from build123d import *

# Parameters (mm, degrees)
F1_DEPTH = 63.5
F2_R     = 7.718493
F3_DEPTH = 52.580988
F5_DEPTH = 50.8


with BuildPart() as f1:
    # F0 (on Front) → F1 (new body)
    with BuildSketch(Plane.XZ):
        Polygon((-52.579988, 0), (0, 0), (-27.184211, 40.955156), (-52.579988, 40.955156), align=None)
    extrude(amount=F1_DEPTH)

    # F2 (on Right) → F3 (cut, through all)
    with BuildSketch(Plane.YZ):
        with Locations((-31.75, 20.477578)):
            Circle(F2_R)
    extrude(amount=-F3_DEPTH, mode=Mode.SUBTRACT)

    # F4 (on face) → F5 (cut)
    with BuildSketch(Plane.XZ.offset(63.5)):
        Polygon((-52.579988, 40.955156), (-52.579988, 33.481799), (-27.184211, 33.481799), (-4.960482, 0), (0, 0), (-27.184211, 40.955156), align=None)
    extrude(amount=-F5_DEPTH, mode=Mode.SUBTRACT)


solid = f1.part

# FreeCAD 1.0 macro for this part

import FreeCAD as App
import Part
import Sketcher
Q = App.Units.Quantity

doc = App.newDocument("Part")
body = doc.addObject("PartDesign::Body", "Body")

# Sketch on XZ plane
sketch1 = body.newObject("Sketcher::SketchObject", "Sketch")
sketch1.AttachmentSupport = (doc.getObject("XZ_Plane"), [""])
sketch1.MapMode = "FlatFace"
sketch1.addGeometry([
    Part.LineSegment(App.Vector(-53, 0, 0), App.Vector(0, 0, 0)),
    Part.LineSegment(App.Vector(0, 0, 0), App.Vector(-27, 41, 0)),
    Part.LineSegment(App.Vector(-27, 41, 0), App.Vector(-53, 41, 0)),
    Part.LineSegment(App.Vector(-53, 41, 0), App.Vector(-53, 0, 0)),
], False)
sketch1.addConstraint([
    Sketcher.Constraint("Coincident", 0, 2, 1, 1),
    Sketcher.Constraint("Coincident", 1, 2, 2, 1),
    Sketcher.Constraint("Coincident", 2, 2, 3, 1),
    Sketcher.Constraint("Coincident", 3, 2, 0, 1),
    Sketcher.Constraint("Horizontal", 0),
    Sketcher.Constraint("Horizontal", 2),
    Sketcher.Constraint("Vertical", 3),
    Sketcher.Constraint("Coincident", 0, 2, -1, 1),
    Sketcher.Constraint("DistanceX", 0, 1, 0, 2, 52.579988),
    Sketcher.Constraint("DistanceX", 2, 2, 2, 1, 25.395777),
    Sketcher.Constraint("DistanceY", 3, 2, 3, 1, 40.955156),
])
pad1 = body.newObject("PartDesign::Pad", "Pad")
pad1.Profile = sketch1
pad1.Length = Q("2.5 in")

# Sketch on YZ plane
sketch2 = body.newObject("Sketcher::SketchObject", "Sketch001")
sketch2.AttachmentSupport = (doc.getObject("YZ_Plane"), [""])
sketch2.MapMode = "FlatFace"
sketch2.addGeometry(Part.Circle(App.Vector(-32, 20, 0), App.Vector(0, 0, 1), 8), False)
sketch2.addConstraint([
    Sketcher.Constraint("DistanceX", 0, 3, -1, 1, Q("1.25 in")),
    Sketcher.Constraint("Diameter", 0, 15.436986),
    Sketcher.Constraint("DistanceY", -1, 1, 0, 3, 20.477578),
])
pocket1 = body.newObject("PartDesign::Pocket", "Pocket")
pocket1.Profile = sketch2
pocket1.Type = "ThroughAll"

# Sketch on XZ plane
sketch3 = body.newObject("Sketcher::SketchObject", "Sketch002")
sketch3.AttachmentSupport = (doc.getObject("XZ_Plane"), [""])
sketch3.MapMode = "FlatFace"
sketch3.AttachmentOffset = App.Placement(App.Vector(0, 0, 2.5 * 25.4), App.Rotation())
sketch3.addGeometry([
    Part.LineSegment(App.Vector(-52.6, 41, 0), App.Vector(-52.6, 33.5, 0)),  # 0
    Part.LineSegment(App.Vector(-52.6, 33.5, 0), App.Vector(-27.2, 33.5, 0)),  # 1
    Part.LineSegment(App.Vector(-27.2, 33.5, 0), App.Vector(-5, 0, 0)),  # 2
    Part.LineSegment(App.Vector(-5, 0, 0), App.Vector(0, 0, 0)),  # 3
    Part.LineSegment(App.Vector(0, 0, 0), App.Vector(-27.2, 41, 0)),  # 4
    Part.LineSegment(App.Vector(-27.2, 41, 0), App.Vector(-52.6, 41, 0)),  # 5
], False)
sketch3.addConstraint([
    Sketcher.Constraint("Coincident", 0, 2, 1, 1),
    Sketcher.Constraint("Coincident", 1, 2, 2, 1),
    Sketcher.Constraint("Coincident", 2, 2, 3, 1),
    Sketcher.Constraint("Coincident", 3, 2, 4, 1),
    Sketcher.Constraint("Coincident", 4, 2, 5, 1),
    Sketcher.Constraint("Coincident", 5, 2, 0, 1),
    Sketcher.Constraint("Vertical", 0),
    Sketcher.Constraint("Horizontal", 1),
    Sketcher.Constraint("Horizontal", 3),
    Sketcher.Constraint("Horizontal", 5),
    Sketcher.Constraint("Coincident", 3, 2, -1, 1),
    Sketcher.Constraint("Parallel", 2, 4),
    Sketcher.Constraint("Vertical", 1, 2, 4, 2),
    Sketcher.Constraint("DistanceY", -1, 1, 0, 2, 33.481799),
    Sketcher.Constraint("Distance", 2, 40.186129),
    Sketcher.Constraint("DistanceX", 1, 1, 1, 2, 25.395777),
    Sketcher.Constraint("DistanceX", 3, 1, 3, 2, 4.960482),
])
pocket2 = body.newObject("PartDesign::Pocket", "Pocket001")
pocket2.Profile = sketch3
pocket2.Length = Q("2 in")

doc.recompute()
